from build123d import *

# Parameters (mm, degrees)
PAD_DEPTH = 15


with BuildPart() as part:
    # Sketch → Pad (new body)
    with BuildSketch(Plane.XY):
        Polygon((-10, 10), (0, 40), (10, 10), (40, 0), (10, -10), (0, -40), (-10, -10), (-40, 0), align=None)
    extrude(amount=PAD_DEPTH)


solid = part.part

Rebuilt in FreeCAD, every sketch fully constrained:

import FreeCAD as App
import Part
import Sketcher
from FreeCAD import Vector


def add_polygon(sketch, points):
    """Adds a closed chain of lines whose ends are joined by coincident constraints."""
    first, n = sketch.GeometryCount, len(points)
    for a, b in zip(points, points[1:] + points[:1]):
        sketch.addGeometry(Part.LineSegment(App.Vector(*a, 0), App.Vector(*b, 0)), False)
    for i in range(n):
        sketch.addConstraint(Sketcher.Constraint("Coincident", first + i, 2, first + (i + 1) % n, 1))

doc = App.newDocument("Part")
params = doc.addObject("Spreadsheet::Sheet", "Params")
for row, (alias, value) in enumerate([
    ("pad1_length", "15 mm"),
], start=1):
    params.set(f"A{row}", alias)
    params.set(f"B{row}", "=" + value)
    params.setAlias(f"B{row}", alias)

body = doc.addObject("PartDesign::Body", "Body")

sketch1 = body.newObject("Sketcher::SketchObject", "Sketch")
sketch1.AttachmentSupport = (doc.getObject("XY_Plane"), [""])
sketch1.MapMode = "FlatFace"
add_polygon(sketch1, [(0, 40), (-10, 10), (-40, 0), (-10, -10), (0, -40), (10, -10), (40, 0), (10, 10)])
sketch1.addConstraint(Sketcher.Constraint("Symmetric", 0, 2, 4, 2, -1, 1))
sketch1.addConstraint(Sketcher.Constraint("Symmetric", 1, 2, 5, 2, -1, 1))
sketch1.addConstraint(Sketcher.Constraint("Symmetric", 2, 2, 6, 2, -1, 1))
sketch1.addConstraint(Sketcher.Constraint("Symmetric", 3, 2, 7, 2, -1, 1))
sketch1.addConstraint(Sketcher.Constraint("Symmetric", 2, 2, 4, 2, -2))
sketch1.addConstraint(Sketcher.Constraint("PointOnObject", 1, 2, -1))
sketch1.addConstraint(Sketcher.Constraint("PointOnObject", 3, 2, -2))
sketch1.addConstraint(Sketcher.Constraint("Perpendicular", 0, 2))
sketch1.addConstraint(Sketcher.Constraint("Equal", 0, 1))
sketch1.addConstraint(Sketcher.Constraint("DistanceX", 0, 2, -1, 1, 10.0))
sketch1.addConstraint(Sketcher.Constraint("DistanceX", 1, 2, -1, 1, 40.0))
pad1 = body.newObject("PartDesign::Pad", "Pad")
pad1.Profile = sketch1
pad1.setExpression("Length", "Params.pad1_length")

doc.recompute()
